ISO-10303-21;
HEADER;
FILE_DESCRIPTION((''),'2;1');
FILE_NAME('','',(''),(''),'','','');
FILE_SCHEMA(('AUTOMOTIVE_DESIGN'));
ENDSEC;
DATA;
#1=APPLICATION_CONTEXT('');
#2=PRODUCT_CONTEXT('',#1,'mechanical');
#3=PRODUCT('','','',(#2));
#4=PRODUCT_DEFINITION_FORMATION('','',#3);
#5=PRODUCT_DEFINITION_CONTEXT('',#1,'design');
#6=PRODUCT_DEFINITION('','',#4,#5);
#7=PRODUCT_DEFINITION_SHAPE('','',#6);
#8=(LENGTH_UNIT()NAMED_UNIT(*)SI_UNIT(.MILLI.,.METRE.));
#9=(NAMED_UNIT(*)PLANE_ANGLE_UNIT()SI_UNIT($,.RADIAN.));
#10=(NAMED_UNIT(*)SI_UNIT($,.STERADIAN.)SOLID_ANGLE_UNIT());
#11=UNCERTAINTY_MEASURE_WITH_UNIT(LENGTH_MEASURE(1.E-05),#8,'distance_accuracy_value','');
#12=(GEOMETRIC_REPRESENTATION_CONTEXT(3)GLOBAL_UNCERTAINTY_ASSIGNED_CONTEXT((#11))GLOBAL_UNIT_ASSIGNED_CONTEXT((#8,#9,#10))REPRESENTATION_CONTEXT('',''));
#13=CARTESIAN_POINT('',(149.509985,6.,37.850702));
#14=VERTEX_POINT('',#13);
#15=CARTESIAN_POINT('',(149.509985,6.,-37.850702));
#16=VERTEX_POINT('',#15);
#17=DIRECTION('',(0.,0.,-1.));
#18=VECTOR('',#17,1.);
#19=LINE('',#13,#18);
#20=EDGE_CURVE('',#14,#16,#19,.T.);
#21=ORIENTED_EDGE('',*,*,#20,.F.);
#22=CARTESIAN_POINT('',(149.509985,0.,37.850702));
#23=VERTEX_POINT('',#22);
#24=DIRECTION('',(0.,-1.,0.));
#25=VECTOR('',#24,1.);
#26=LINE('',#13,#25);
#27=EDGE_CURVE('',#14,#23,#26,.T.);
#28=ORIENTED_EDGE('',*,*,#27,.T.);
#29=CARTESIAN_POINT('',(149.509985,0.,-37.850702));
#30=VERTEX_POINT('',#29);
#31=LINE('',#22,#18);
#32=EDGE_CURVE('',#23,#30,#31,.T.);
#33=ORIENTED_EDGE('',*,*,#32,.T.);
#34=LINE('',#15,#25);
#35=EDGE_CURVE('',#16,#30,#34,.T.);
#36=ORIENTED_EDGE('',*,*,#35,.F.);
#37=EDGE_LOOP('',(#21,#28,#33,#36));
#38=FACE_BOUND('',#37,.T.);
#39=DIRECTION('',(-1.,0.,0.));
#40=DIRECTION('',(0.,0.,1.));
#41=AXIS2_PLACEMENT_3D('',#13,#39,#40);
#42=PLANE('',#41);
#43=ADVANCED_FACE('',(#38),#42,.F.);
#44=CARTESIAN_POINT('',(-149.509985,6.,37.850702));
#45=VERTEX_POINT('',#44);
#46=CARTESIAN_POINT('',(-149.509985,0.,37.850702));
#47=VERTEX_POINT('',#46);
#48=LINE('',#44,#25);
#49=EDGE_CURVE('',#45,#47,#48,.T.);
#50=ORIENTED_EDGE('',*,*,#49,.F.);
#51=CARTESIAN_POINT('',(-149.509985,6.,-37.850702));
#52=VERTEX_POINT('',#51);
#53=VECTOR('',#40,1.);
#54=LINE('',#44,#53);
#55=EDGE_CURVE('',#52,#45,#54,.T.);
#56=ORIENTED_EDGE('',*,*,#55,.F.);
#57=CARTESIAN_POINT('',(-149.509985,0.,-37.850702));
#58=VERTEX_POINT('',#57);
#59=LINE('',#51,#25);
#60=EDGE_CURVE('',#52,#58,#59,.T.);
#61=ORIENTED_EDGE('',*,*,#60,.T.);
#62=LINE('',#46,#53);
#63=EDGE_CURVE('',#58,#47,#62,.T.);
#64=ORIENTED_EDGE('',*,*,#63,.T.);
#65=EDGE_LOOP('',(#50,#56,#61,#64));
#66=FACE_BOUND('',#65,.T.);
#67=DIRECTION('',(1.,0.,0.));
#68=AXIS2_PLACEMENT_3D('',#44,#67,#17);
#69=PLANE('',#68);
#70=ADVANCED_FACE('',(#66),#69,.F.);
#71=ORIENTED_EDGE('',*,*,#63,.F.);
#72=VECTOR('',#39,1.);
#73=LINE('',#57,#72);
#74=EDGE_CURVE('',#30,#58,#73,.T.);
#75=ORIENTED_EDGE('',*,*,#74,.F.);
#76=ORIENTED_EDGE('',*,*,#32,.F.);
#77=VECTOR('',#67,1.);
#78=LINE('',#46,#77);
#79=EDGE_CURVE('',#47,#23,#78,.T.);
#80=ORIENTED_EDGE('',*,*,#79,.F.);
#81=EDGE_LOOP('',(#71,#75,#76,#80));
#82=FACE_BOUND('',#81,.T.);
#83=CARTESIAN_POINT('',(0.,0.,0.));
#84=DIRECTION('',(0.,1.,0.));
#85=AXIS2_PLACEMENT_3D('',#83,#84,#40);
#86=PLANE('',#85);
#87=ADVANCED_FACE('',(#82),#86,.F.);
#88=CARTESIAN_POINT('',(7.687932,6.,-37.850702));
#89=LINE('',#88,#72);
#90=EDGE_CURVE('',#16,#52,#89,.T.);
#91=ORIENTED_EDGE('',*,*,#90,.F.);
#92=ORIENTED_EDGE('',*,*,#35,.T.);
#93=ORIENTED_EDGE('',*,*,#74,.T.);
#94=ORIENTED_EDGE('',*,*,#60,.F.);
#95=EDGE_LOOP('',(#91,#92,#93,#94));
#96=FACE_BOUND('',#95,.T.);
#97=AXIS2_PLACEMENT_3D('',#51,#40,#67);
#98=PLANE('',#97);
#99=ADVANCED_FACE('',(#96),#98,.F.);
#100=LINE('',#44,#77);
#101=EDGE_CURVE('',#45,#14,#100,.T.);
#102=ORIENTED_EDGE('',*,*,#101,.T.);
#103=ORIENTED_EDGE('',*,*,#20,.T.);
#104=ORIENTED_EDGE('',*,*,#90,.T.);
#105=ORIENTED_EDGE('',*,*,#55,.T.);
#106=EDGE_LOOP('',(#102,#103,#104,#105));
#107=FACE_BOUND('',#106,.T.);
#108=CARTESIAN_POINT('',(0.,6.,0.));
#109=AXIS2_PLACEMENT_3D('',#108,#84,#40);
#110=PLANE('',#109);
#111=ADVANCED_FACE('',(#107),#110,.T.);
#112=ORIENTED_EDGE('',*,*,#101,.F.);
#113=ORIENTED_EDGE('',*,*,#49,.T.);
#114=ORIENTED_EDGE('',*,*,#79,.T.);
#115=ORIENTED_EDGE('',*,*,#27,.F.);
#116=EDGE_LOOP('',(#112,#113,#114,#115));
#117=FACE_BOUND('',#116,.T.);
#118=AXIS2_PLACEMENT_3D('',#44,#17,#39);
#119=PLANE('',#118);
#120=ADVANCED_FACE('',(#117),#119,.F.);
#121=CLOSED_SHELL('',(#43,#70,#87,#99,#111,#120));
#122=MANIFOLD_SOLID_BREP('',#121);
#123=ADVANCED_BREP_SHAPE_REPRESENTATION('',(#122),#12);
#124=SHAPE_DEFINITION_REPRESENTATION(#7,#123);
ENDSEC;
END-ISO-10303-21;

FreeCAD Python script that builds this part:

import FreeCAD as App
import Part
import Sketcher

V = App.Vector
Q = App.Units.Quantity


def add_polygon(sketch, points):
    """Adds a closed chain of lines whose ends are joined by coincident constraints."""
    first, n = sketch.GeometryCount, len(points)
    for a, b in zip(points, points[1:] + points[:1]):
        sketch.addGeometry(Part.LineSegment(App.Vector(*a, 0), App.Vector(*b, 0)), False)
    for i in range(n):
        sketch.addConstraint(Sketcher.Constraint("Coincident", first + i, 2, first + (i + 1) % n, 1))

doc = App.newDocument("Part")
body = doc.addObject("PartDesign::Body", "Body")

# Sketch on XZ plane
sketch1 = body.newObject("Sketcher::SketchObject", "Sketch")
sketch1.AttachmentSupport = (doc.getObject("XZ_Plane"), [""])
sketch1.MapMode = "FlatFace"
add_polygon(sketch1, [(-150, 38), (150, 38), (150, -38), (-150, -38)])  # lines 0-3
sketch1.addConstraint([
    Sketcher.Constraint("Horizontal", 0),
    Sketcher.Constraint("Vertical", 1),
    Sketcher.Constraint("Horizontal", 2),
    Sketcher.Constraint("Vertical", 3),
    Sketcher.Constraint("Symmetric", 0, 2, 2, 2, -1, 1),
    Sketcher.Constraint("DistanceX", 0, 1, 0, 2, Q("299.019971 mm")),
    Sketcher.Constraint("DistanceY", -1, 1, 0, 2, Q("37.850702 mm")),
])
pad1 = body.newObject("PartDesign::Pad", "Pad")
pad1.Profile = sketch1
pad1.Length = 6
pad1.Reversed = True

doc.recompute()
